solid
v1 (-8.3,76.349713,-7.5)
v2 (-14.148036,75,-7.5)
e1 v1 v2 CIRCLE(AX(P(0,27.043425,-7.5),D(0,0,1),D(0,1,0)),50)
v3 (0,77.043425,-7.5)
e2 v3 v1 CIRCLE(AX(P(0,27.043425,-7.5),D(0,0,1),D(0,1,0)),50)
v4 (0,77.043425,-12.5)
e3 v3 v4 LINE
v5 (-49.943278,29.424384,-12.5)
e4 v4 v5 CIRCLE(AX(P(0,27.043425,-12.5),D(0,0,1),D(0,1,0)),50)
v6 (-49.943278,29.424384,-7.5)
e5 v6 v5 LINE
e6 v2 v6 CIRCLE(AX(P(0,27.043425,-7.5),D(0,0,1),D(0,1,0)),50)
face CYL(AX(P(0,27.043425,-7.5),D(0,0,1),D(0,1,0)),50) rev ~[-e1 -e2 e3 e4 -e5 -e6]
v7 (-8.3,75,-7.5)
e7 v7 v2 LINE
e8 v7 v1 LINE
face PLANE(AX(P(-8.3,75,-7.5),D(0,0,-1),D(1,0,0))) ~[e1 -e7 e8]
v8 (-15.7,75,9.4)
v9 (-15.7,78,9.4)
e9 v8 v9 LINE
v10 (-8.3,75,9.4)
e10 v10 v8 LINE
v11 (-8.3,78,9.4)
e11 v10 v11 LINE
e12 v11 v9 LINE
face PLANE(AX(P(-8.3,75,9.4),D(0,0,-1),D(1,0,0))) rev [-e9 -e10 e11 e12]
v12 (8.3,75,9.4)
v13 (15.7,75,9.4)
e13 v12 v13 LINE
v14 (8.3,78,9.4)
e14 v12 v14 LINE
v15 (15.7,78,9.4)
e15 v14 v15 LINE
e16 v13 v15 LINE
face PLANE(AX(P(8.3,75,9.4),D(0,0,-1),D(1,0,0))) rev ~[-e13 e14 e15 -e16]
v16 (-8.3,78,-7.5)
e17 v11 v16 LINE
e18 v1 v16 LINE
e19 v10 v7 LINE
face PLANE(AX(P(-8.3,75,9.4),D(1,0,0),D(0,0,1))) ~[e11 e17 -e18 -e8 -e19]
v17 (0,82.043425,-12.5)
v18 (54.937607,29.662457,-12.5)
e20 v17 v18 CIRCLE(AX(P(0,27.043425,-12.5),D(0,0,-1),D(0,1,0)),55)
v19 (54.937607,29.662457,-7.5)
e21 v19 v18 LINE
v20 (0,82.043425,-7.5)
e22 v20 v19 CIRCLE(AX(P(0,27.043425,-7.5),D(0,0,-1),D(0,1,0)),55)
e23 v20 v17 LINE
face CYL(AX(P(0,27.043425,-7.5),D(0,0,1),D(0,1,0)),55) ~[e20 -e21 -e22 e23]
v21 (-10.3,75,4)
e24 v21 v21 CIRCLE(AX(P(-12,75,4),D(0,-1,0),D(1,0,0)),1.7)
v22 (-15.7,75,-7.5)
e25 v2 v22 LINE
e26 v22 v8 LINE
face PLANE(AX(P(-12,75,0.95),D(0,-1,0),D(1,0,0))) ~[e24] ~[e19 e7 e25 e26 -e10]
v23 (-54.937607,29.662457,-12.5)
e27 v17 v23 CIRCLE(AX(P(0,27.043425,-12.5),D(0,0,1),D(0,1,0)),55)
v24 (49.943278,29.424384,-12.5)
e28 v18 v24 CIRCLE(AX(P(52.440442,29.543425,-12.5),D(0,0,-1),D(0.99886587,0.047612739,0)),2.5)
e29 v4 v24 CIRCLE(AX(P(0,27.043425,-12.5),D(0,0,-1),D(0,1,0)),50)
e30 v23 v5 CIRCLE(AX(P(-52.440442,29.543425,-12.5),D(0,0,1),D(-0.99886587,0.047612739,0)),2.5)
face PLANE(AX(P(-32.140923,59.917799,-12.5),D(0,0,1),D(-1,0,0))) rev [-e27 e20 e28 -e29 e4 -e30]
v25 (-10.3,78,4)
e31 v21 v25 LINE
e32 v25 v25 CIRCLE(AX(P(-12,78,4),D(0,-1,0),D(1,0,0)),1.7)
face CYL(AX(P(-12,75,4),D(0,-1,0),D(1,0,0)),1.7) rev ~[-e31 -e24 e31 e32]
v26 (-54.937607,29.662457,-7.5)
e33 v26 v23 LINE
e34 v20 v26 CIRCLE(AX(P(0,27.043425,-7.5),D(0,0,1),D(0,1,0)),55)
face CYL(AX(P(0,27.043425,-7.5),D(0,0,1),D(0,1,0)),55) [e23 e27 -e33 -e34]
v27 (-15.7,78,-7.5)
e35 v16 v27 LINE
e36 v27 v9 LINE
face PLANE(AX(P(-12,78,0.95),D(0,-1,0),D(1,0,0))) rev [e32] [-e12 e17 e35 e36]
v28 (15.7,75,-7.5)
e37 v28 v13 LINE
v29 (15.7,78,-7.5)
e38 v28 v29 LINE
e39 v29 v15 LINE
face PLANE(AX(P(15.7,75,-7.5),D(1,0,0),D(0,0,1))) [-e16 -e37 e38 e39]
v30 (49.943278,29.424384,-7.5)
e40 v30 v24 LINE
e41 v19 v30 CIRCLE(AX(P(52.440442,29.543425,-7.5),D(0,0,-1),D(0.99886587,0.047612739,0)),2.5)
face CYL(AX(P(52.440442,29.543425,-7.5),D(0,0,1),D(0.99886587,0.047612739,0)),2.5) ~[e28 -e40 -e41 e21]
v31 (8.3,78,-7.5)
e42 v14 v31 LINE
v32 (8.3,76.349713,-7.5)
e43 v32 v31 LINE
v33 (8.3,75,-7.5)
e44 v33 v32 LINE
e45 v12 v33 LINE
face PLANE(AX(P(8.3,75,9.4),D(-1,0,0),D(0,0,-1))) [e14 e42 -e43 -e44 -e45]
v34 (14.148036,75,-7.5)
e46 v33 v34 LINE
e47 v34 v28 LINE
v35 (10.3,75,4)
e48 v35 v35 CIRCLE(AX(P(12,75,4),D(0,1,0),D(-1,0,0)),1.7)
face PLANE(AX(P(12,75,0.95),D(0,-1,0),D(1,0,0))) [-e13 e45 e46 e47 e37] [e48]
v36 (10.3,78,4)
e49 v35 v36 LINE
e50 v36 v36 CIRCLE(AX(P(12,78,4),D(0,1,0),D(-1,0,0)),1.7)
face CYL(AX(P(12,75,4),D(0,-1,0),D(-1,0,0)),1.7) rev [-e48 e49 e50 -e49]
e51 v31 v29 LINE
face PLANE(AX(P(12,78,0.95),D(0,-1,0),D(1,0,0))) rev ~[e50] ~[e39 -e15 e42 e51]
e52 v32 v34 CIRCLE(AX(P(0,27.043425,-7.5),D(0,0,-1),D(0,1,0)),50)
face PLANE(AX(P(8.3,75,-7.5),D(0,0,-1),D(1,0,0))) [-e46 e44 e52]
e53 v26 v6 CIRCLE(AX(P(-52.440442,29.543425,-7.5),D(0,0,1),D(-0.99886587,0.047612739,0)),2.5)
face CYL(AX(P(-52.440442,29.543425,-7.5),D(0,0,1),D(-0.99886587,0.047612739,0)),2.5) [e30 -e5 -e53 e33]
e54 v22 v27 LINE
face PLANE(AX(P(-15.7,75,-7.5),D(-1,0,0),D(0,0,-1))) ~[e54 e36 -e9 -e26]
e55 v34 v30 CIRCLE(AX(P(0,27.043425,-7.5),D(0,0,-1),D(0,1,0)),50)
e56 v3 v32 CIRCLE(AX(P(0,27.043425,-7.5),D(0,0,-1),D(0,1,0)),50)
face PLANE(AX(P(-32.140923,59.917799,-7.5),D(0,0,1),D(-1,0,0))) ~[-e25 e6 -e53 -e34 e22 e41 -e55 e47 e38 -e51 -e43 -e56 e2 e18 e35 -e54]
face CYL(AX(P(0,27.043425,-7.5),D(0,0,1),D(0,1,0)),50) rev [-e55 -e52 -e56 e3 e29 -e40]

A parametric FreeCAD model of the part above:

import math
import FreeCAD as App
import Part
import Sketcher
from FreeCAD import Vector
Q = App.Units.Quantity


def add_polygon(sketch, points):
    """Adds a closed chain of lines whose ends are joined by coincident constraints."""
    first, n = sketch.GeometryCount, len(points)
    for a, b in zip(points, points[1:] + points[:1]):
        sketch.addGeometry(Part.LineSegment(App.Vector(*a, 0), App.Vector(*b, 0)), False)
    for i in range(n):
        sketch.addConstraint(Sketcher.Constraint("Coincident", first + i, 2, first + (i + 1) % n, 1))

doc = App.newDocument("Part")
body = doc.addObject("PartDesign::Body", "Body")

# Sketch on XZ plane
sketch1 = doc.addObject("Sketcher::SketchObject", "Sketch")
body.addObject(sketch1)
sketch1.AttachmentSupport = (doc.XZ_Plane, [""])
sketch1.MapMode = "FlatFace"
sketch1.AttachmentOffset = App.Placement(Vector(0, 0, -75), App.Rotation())
add_polygon(sketch1, [(15.7, 9.4), (15.7, -7.5), (8.3, -7.5), (8.3, 9.4)])  # lines 0-3
sketch1.addGeometry(Part.Circle(Vector(12, 4, 0), Vector(0, 0, 1), 1.7), False)  # 4
sketch1.addConstraint(Sketcher.Constraint("Vertical", 0))
sketch1.addConstraint(Sketcher.Constraint("Horizontal", 1))
sketch1.addConstraint(Sketcher.Constraint("Vertical", 2))
sketch1.addConstraint(Sketcher.Constraint("Horizontal", 3))
sketch1.addConstraint(Sketcher.Constraint("Diameter", 4, Q("3.4 mm")))
sketch1.addConstraint(Sketcher.Constraint("DistanceX", 1, 2, 1, 1, Q("7.4 mm")))
sketch1.addConstraint(Sketcher.Constraint("DistanceY", 0, 2, 0, 1, Q("16.9 mm")))
sketch1.addConstraint(Sketcher.Constraint("DistanceX", -1, 1, 4, 3, Q("12 mm")))
sketch1.addConstraint(Sketcher.Constraint("DistanceY", -1, 1, 4, 3, Q("4 mm")))
sketch1.addConstraint(Sketcher.Constraint("DistanceX", -1, 1, 0, 2, Q("15.7 mm")))
sketch1.addConstraint(Sketcher.Constraint("DistanceY", 0, 2, -1, 1, Q("7.5 mm")))
pad1 = doc.addObject("PartDesign::Pad", "Pad")
body.addObject(pad1)
pad1.Profile = sketch1
pad1.Length = 3
pad1.Reversed = True

# Sketch on XY plane
sketch2 = doc.addObject("Sketcher::SketchObject", "Sketch001")
body.addObject(sketch2)
sketch2.AttachmentSupport = (doc.XY_Plane, [""])
sketch2.MapMode = "FlatFace"
sketch2.AttachmentOffset = App.Placement(Vector(0, 0, -7.5), App.Rotation())
sketch2.addGeometry(Part.ArcOfCircle(Part.Circle(Vector(0, 27, 0), Vector(0, 0, 1), 50), math.radians(3), math.radians(90)), False)
sketch2.addGeometry(Part.LineSegment(Vector(0, 77, 0), Vector(0, 82, 0)), False)
sketch2.addGeometry(Part.ArcOfCircle(Part.Circle(Vector(0, 27, 0), Vector(0, 0, 1), 55), math.radians(3), math.radians(90)), False)
sketch2.addGeometry(Part.ArcOfCircle(Part.Circle(Vector(52.4, 29.5, 0), Vector(0, 0, 1), 2.5), math.radians(-177), math.radians(3)), False)
sketch2.addConstraint(Sketcher.Constraint("Coincident", 0, 2, 1, 1))
sketch2.addConstraint(Sketcher.Constraint("Coincident", 1, 2, 2, 2))
sketch2.addConstraint(Sketcher.Constraint("Coincident", 2, 1, 3, 2))
sketch2.addConstraint(Sketcher.Constraint("Coincident", 3, 1, 0, 1))
sketch2.addConstraint(Sketcher.Constraint("Vertical", 1))
sketch2.addConstraint(Sketcher.Constraint("Coincident", 2, 3, 0, 3))
sketch2.addConstraint(Sketcher.Constraint("PointOnObject", 0, 3, -2))
sketch2.addConstraint(Sketcher.Constraint("PointOnObject", 0, 2, -2))
sketch2.addConstraint(Sketcher.Constraint("Radius", 0, Q("50 mm")))
sketch2.addConstraint(Sketcher.Constraint("Radius", 2, Q("55 mm")))
sketch2.addConstraint(Sketcher.Constraint("DistanceY", 0, 3, 3, 3, Q("2.5 mm")))
sketch2.addConstraint(Sketcher.Constraint("DistanceX", -1, 1, 3, 1, Q("49.943278 mm")))
sketch2.addConstraint(Sketcher.Constraint("DistanceY", 3, 3, 2, 1, Q("0.119032 mm")))
sketch2.addConstraint(Sketcher.Constraint("DistanceY", -1, 1, 0, 3, Q("27.043425 mm")))
pad2 = doc.addObject("PartDesign::Pad", "Pad001")
body.addObject(pad2)
pad2.Profile = sketch2
pad2.Length = 5
pad2.Reversed = True
doc.recompute()

mirrored = doc.addObject("PartDesign::Mirrored", "Mirrored")
body.addObject(mirrored)
mirrored.Originals = [pad2, pad1]
mirrored.MirrorPlane = (doc.YZ_Plane, [""])
body.Tip = mirrored

doc.recompute()
